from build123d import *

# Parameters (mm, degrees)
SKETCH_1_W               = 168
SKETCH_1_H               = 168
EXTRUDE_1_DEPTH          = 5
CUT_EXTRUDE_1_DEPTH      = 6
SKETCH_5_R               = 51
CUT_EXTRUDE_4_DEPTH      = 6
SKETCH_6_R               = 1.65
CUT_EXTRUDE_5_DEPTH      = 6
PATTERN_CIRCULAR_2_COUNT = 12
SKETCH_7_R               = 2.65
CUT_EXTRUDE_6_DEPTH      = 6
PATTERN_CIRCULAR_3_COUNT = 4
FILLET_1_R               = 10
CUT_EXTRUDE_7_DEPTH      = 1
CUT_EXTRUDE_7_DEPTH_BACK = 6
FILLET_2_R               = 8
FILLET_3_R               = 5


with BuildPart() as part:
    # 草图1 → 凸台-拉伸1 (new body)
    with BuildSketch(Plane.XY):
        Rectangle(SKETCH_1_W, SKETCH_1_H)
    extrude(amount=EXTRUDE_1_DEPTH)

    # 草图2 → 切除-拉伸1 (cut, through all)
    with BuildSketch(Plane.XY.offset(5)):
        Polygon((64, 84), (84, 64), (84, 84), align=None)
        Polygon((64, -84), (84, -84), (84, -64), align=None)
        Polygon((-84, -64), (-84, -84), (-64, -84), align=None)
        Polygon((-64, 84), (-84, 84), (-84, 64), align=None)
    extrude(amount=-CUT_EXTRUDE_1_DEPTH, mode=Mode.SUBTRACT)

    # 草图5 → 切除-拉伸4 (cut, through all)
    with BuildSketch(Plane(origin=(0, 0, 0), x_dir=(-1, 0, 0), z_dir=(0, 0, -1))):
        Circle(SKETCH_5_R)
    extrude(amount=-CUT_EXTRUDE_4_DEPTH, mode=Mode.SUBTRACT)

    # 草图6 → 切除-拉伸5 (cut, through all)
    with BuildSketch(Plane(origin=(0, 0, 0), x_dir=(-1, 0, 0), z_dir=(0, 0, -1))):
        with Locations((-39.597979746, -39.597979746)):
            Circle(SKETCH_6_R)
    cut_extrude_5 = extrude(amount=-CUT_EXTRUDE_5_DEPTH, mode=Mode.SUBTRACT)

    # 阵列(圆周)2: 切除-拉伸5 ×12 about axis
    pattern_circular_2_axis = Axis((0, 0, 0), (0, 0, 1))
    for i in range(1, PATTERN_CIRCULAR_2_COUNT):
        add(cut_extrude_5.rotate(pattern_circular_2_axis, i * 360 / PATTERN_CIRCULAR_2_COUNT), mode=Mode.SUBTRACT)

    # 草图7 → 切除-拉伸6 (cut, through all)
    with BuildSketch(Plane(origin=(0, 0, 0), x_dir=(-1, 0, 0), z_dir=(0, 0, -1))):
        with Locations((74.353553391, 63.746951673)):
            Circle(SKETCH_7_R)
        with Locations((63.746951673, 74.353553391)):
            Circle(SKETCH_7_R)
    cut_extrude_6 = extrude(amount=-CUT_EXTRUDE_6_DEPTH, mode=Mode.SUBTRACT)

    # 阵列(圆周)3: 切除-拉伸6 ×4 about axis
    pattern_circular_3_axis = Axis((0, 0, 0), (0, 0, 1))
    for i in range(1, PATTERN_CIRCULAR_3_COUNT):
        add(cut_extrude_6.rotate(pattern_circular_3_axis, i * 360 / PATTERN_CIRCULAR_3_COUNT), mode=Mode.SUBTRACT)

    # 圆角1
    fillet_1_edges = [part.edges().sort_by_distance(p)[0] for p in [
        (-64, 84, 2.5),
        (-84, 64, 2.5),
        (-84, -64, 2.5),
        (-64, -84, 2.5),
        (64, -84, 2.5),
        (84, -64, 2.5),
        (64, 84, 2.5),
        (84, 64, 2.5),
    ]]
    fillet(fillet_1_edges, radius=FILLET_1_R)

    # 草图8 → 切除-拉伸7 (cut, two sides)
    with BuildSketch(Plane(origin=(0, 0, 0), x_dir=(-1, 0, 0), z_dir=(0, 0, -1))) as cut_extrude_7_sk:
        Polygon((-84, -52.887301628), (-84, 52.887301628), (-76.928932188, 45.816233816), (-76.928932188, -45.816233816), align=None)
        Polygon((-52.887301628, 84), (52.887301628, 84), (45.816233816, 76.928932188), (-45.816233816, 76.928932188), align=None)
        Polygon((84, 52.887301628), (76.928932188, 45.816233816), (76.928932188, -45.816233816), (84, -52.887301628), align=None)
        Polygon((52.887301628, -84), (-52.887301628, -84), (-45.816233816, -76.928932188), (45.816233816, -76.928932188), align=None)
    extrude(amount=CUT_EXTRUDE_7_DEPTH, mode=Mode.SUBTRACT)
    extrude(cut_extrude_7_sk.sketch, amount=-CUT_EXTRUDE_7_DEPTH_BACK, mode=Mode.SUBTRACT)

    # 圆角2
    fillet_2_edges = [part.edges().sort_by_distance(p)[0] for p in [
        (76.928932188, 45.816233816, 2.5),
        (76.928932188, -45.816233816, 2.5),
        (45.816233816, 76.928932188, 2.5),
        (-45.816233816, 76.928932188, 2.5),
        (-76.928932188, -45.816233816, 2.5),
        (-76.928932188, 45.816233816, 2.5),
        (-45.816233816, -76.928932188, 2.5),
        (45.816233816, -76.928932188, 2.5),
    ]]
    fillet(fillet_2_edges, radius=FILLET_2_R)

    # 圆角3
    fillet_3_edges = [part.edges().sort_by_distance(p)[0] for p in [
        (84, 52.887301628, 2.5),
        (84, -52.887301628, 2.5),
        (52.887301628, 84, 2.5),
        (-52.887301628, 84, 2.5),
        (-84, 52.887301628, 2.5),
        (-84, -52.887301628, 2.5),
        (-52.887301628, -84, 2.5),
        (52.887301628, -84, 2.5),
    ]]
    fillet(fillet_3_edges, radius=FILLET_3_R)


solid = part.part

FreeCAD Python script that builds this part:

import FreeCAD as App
import Part
import Sketcher
from FreeCAD import Vector
Q = App.Units.Quantity


def edges_at(feature, points):
    """Names of the edges that pass closest to the given points."""
    edges = feature.Shape.Edges
    near = lambda p: min(range(len(edges)), key=lambda i: edges[i].distToShape(Part.Vertex(*p))[0])
    return sorted({f"Edge{near(p) + 1}" for p in points})

doc = App.newDocument("Part")
body = doc.addObject("PartDesign::Body", "Body")

sketch1 = doc.addObject("Sketcher::SketchObject", "Sketch")
body.addObject(sketch1)
sketch1.AttachmentSupport = (doc.XY_Plane, [""])
sketch1.MapMode = "FlatFace"
sketch1.addGeometry([
    Part.LineSegment(Vector(-84, 84, 0), Vector(-84, -84, 0)),
    Part.LineSegment(Vector(-84, -84, 0), Vector(84, -84, 0)),
    Part.LineSegment(Vector(84, -84, 0), Vector(84, 84, 0)),
    Part.LineSegment(Vector(84, 84, 0), Vector(-84, 84, 0)),
], False)
sketch1.addConstraint([
    Sketcher.Constraint("Coincident", 0, 2, 1, 1),
    Sketcher.Constraint("Coincident", 1, 2, 2, 1),
    Sketcher.Constraint("Coincident", 2, 2, 3, 1),
    Sketcher.Constraint("Coincident", 3, 2, 0, 1),
    Sketcher.Constraint("Vertical", 0),
    Sketcher.Constraint("Horizontal", 1),
    Sketcher.Constraint("Vertical", 2),
    Sketcher.Constraint("Horizontal", 3),
    Sketcher.Constraint("Symmetric", 0, 2, 2, 2, -1, 1),
    Sketcher.Constraint("Equal", 3, 0),
    Sketcher.Constraint("DistanceX", 1, 1, 1, 2, Q("168 mm")),
])
pad1 = doc.addObject("PartDesign::Pad", "Pad")
body.addObject(pad1)
pad1.Profile = sketch1
pad1.Length = 5

sketch2 = doc.addObject("Sketcher::SketchObject", "Sketch001")
body.addObject(sketch2)
sketch2.AttachmentSupport = (doc.XY_Plane, [""])
sketch2.MapMode = "FlatFace"
sketch2.AttachmentOffset = App.Placement(Vector(0, 0, 5), App.Rotation())
sketch2.addGeometry([
    Part.LineSegment(Vector(64, 84, 0), Vector(84, 64, 0)),
    Part.LineSegment(Vector(84, 64, 0), Vector(84, 84, 0)),
    Part.LineSegment(Vector(84, 84, 0), Vector(64, 84, 0)),
    Part.LineSegment(Vector(64, -84, 0), Vector(84, -84, 0)),
    Part.LineSegment(Vector(84, -84, 0), Vector(84, -64, 0)),
    Part.LineSegment(Vector(84, -64, 0), Vector(64, -84, 0)),
    Part.LineSegment(Vector(-84, -64, 0), Vector(-84, -84, 0)),
    Part.LineSegment(Vector(-84, -84, 0), Vector(-64, -84, 0)),
    Part.LineSegment(Vector(-64, -84, 0), Vector(-84, -64, 0)),
    Part.LineSegment(Vector(-64, 84, 0), Vector(-84, 84, 0)),
    Part.LineSegment(Vector(-84, 84, 0), Vector(-84, 64, 0)),
    Part.LineSegment(Vector(-84, 64, 0), Vector(-64, 84, 0)),
], False)
sketch2.addConstraint([
    Sketcher.Constraint("Coincident", 0, 2, 1, 1),
    Sketcher.Constraint("Coincident", 1, 2, 2, 1),
    Sketcher.Constraint("Coincident", 2, 2, 0, 1),
    Sketcher.Constraint("Coincident", 3, 2, 4, 1),
    Sketcher.Constraint("Coincident", 4, 2, 5, 1),
    Sketcher.Constraint("Coincident", 5, 2, 3, 1),
    Sketcher.Constraint("Coincident", 6, 2, 7, 1),
    Sketcher.Constraint("Coincident", 7, 2, 8, 1),
    Sketcher.Constraint("Coincident", 8, 2, 6, 1),
    Sketcher.Constraint("Coincident", 9, 2, 10, 1),
    Sketcher.Constraint("Coincident", 10, 2, 11, 1),
    Sketcher.Constraint("Coincident", 11, 2, 9, 1),
    Sketcher.Constraint("Vertical", 1),
    Sketcher.Constraint("Horizontal", 2),
    Sketcher.Constraint("Horizontal", 3),
    Sketcher.Constraint("Vertical", 4),
    Sketcher.Constraint("Vertical", 6),
    Sketcher.Constraint("Horizontal", 7),
    Sketcher.Constraint("Horizontal", 9),
    Sketcher.Constraint("Vertical", 10),
    Sketcher.Constraint("Symmetric", 1, 2, 6, 2, -1, 1),
    Sketcher.Constraint("Symmetric", 3, 2, 9, 2, -1, 1),
    Sketcher.Constraint("Symmetric", 3, 2, 6, 2, -2),
    Sketcher.Constraint("Perpendicular", 0, 5),
    Sketcher.Constraint("Perpendicular", 5, 8),
    Sketcher.Constraint("Perpendicular", 8, 11),
    Sketcher.Constraint("Horizontal", 4, 2, 8, 2),
    Sketcher.Constraint("Horizontal", 0, 2, 10, 2),
    Sketcher.Constraint("Vertical", 2, 2, 5, 2),
    Sketcher.Constraint("Vertical", 7, 2, 11, 2),
    Sketcher.Constraint("DistanceX", 2, 2, 2, 1, Q("20 mm")),
    Sketcher.Constraint("DistanceX", -1, 1, 0, 2, Q("84 mm")),
    Sketcher.Constraint("DistanceY", -1, 1, 0, 2, Q("64 mm")),
])
pocket1 = doc.addObject("PartDesign::Pocket", "Pocket")
body.addObject(pocket1)
pocket1.Profile = sketch2
pocket1.Type = "ThroughAll"

sketch3 = doc.addObject("Sketcher::SketchObject", "Sketch002")
body.addObject(sketch3)
sketch3.AttachmentSupport = (doc.XY_Plane, [""])
sketch3.MapMode = "FlatFace"
sketch3.addGeometry(Part.Circle(Vector(0, 0, 0), Vector(0, 0, 1), 51), False)
sketch3.addConstraint([
    Sketcher.Constraint("Coincident", 0, 3, -1, 1),
    Sketcher.Constraint("Diameter", 0, Q("102 mm")),
])
pocket2 = doc.addObject("PartDesign::Pocket", "Pocket001")
body.addObject(pocket2)
pocket2.Profile = sketch3
pocket2.Type = "ThroughAll"
pocket2.Reversed = True

sketch4 = doc.addObject("Sketcher::SketchObject", "Sketch003")
body.addObject(sketch4)
sketch4.AttachmentSupport = (doc.XY_Plane, [""])
sketch4.MapMode = "FlatFace"
sketch4.addGeometry(Part.Circle(Vector(39.6, -39.6, 0), Vector(0, 0, 1), 1.6), False)
sketch4.addConstraint([
    Sketcher.Constraint("Diameter", 0, Q("3.3 mm")),
    Sketcher.Constraint("DistanceX", -1, 1, 0, 3, Q("39.59798 mm")),
    Sketcher.Constraint("DistanceY", 0, 3, -1, 1, Q("39.59798 mm")),
])
pocket3 = doc.addObject("PartDesign::Pocket", "Pocket002")
body.addObject(pocket3)
pocket3.Profile = sketch4
pocket3.Type = "ThroughAll"
pocket3.Reversed = True
doc.recompute()

polarpattern = doc.addObject("PartDesign::PolarPattern", "PolarPattern")
body.addObject(polarpattern)
polarpattern.Originals = [pocket3]
polarpattern.Axis = (doc.Z_Axis, [""])
polarpattern.Angle = 360
polarpattern.Occurrences = 12
body.Tip = polarpattern

sketch5 = doc.addObject("Sketcher::SketchObject", "Sketch004")
body.addObject(sketch5)
sketch5.AttachmentSupport = (doc.XY_Plane, [""])
sketch5.MapMode = "FlatFace"
sketch5.addGeometry([
    Part.Circle(Vector(-74.4, 63.7, 0), Vector(0, 0, 1), 2.6),
    Part.Circle(Vector(-63.7, 74.4, 0), Vector(0, 0, 1), 2.6),
], False)
sketch5.addConstraint([
    Sketcher.Constraint("Equal", 0, 1),
    Sketcher.Constraint("Diameter", 0, Q("5.3 mm")),
    Sketcher.Constraint("DistanceX", 0, 3, 1, 3, Q("10.606602 mm")),
    Sketcher.Constraint("DistanceY", 0, 3, 1, 3, Q("10.606602 mm")),
    Sketcher.Constraint("DistanceY", -1, 1, 0, 3, Q("63.746952 mm")),
    Sketcher.Constraint("DistanceX", 1, 3, -1, 1, Q("63.746952 mm")),
])
pocket4 = doc.addObject("PartDesign::Pocket", "Pocket003")
body.addObject(pocket4)
pocket4.Profile = sketch5
pocket4.Type = "ThroughAll"
pocket4.Reversed = True
doc.recompute()

polarpattern2 = doc.addObject("PartDesign::PolarPattern", "PolarPattern001")
body.addObject(polarpattern2)
polarpattern2.Originals = [pocket4]
polarpattern2.Axis = (doc.Z_Axis, [""])
polarpattern2.Angle = 360
polarpattern2.Occurrences = 4
body.Tip = polarpattern2
doc.recompute()

fillet = doc.addObject("PartDesign::Fillet", "Fillet")
body.addObject(fillet)
fillet.Base = (polarpattern2, edges_at(polarpattern2, [
    (-64, 84, 2.5),
    (-84, 64, 2.5),
    (-84, -64, 2.5),
    (-64, -84, 2.5),
    (64, -84, 2.5),
    (84, -64, 2.5),
    (64, 84, 2.5),
    (84, 64, 2.5),
]))
fillet.Radius = 10

sketch6 = doc.addObject("Sketcher::SketchObject", "Sketch005")
body.addObject(sketch6)
sketch6.AttachmentSupport = (doc.XY_Plane, [""])
sketch6.MapMode = "FlatFace"
sketch6.addGeometry([
    Part.LineSegment(Vector(84, 53, 0), Vector(84, -53, 0)),
    Part.LineSegment(Vector(84, -53, 0), Vector(77, -46, 0)),
    Part.LineSegment(Vector(77, -46, 0), Vector(77, 46, 0)),
    Part.LineSegment(Vector(77, 46, 0), Vector(84, 53, 0)),
    Part.LineSegment(Vector(-53, 84, 0), Vector(53, 84, 0)),
    Part.LineSegment(Vector(53, 84, 0), Vector(46, 77, 0)),
    Part.LineSegment(Vector(46, 77, 0), Vector(-46, 77, 0)),
    Part.LineSegment(Vector(-46, 77, 0), Vector(-53, 84, 0)),
    Part.LineSegment(Vector(-84, 53, 0), Vector(-77, 46, 0)),
    Part.LineSegment(Vector(-77, 46, 0), Vector(-77, -46, 0)),
    Part.LineSegment(Vector(-77, -46, 0), Vector(-84, -53, 0)),
    Part.LineSegment(Vector(-84, -53, 0), Vector(-84, 53, 0)),
    Part.LineSegment(Vector(53, -84, 0), Vector(-53, -84, 0)),
    Part.LineSegment(Vector(-53, -84, 0), Vector(-46, -77, 0)),
    Part.LineSegment(Vector(-46, -77, 0), Vector(46, -77, 0)),
    Part.LineSegment(Vector(46, -77, 0), Vector(53, -84, 0)),
], False)
sketch6.addConstraint([
    Sketcher.Constraint("Coincident", 0, 2, 1, 1),
    Sketcher.Constraint("Coincident", 1, 2, 2, 1),
    Sketcher.Constraint("Coincident", 2, 2, 3, 1),
    Sketcher.Constraint("Coincident", 3, 2, 0, 1),
    Sketcher.Constraint("Coincident", 4, 2, 5, 1),
    Sketcher.Constraint("Coincident", 5, 2, 6, 1),
    Sketcher.Constraint("Coincident", 6, 2, 7, 1),
    Sketcher.Constraint("Coincident", 7, 2, 4, 1),
    Sketcher.Constraint("Coincident", 8, 2, 9, 1),
    Sketcher.Constraint("Coincident", 9, 2, 10, 1),
    Sketcher.Constraint("Coincident", 10, 2, 11, 1),
    Sketcher.Constraint("Coincident", 11, 2, 8, 1),
    Sketcher.Constraint("Coincident", 12, 2, 13, 1),
    Sketcher.Constraint("Coincident", 13, 2, 14, 1),
    Sketcher.Constraint("Coincident", 14, 2, 15, 1),
    Sketcher.Constraint("Coincident", 15, 2, 12, 1),
    Sketcher.Constraint("Vertical", 0),
    Sketcher.Constraint("Vertical", 2),
    Sketcher.Constraint("Horizontal", 4),
    Sketcher.Constraint("Horizontal", 6),
    Sketcher.Constraint("Vertical", 9),
    Sketcher.Constraint("Vertical", 11),
    Sketcher.Constraint("Horizontal", 12),
    Sketcher.Constraint("Horizontal", 14),
    Sketcher.Constraint("Symmetric", 1, 2, 8, 2, -1, 1),
    Sketcher.Constraint("Symmetric", 3, 2, 10, 2, -1, 1),
    Sketcher.Constraint("Symmetric", 4, 2, 12, 2, -1, 1),
    Sketcher.Constraint("Symmetric", 5, 2, 13, 2, -1, 1),
    Sketcher.Constraint("Perpendicular", 1, 3),
    Sketcher.Constraint("Parallel", 3, 5),
    Sketcher.Constraint("Perpendicular", 5, 7),
    Sketcher.Constraint("Parallel", 7, 8),
    Sketcher.Constraint("Perpendicular", 8, 10),
    Sketcher.Constraint("Perpendicular", 13, 15),
    Sketcher.Constraint("Horizontal", 2, 2, 8, 2),
    Sketcher.Constraint("Horizontal", 0, 2, 10, 2),
    Sketcher.Constraint("Vertical", 7, 2, 12, 2),
    Sketcher.Constraint("Vertical", 5, 2, 14, 2),
    Sketcher.Constraint("Equal", 12, 0),
    Sketcher.Constraint("Equal", 14, 2),
    Sketcher.Constraint("Distance", 1, Q("10 mm")),
    Sketcher.Constraint("DistanceX", -1, 1, 0, 2, Q("84 mm")),
    Sketcher.Constraint("DistanceY", -1, 1, 4, 2, Q("84 mm")),
    Sketcher.Constraint("DistanceY", 0, 2, -1, 1, Q("52.887302 mm")),
])
pocket5 = doc.addObject("PartDesign::Pocket", "Pocket004")
body.addObject(pocket5)
pocket5.Profile = sketch6
pocket5.Type = "ThroughAll"
pocket5.Midplane = True
doc.recompute()

fillet2 = doc.addObject("PartDesign::Fillet", "Fillet001")
body.addObject(fillet2)
fillet2.Base = (pocket5, edges_at(pocket5, [
    (76.929, 45.816, 2.5),
    (76.929, -45.816, 2.5),
    (45.816, 76.929, 2.5),
    (-45.816, 76.929, 2.5),
    (-76.929, -45.816, 2.5),
    (-76.929, 45.816, 2.5),
    (-45.816, -76.929, 2.5),
    (45.816, -76.929, 2.5),
]))
fillet2.Radius = 8
doc.recompute()

fillet3 = doc.addObject("PartDesign::Fillet", "Fillet002")
body.addObject(fillet3)
fillet3.Base = (fillet2, edges_at(fillet2, [
    (84, 52.887, 2.5),
    (84, -52.887, 2.5),
    (52.887, 84, 2.5),
    (-52.887, 84, 2.5),
    (-84, 52.887, 2.5),
    (-84, -52.887, 2.5),
    (-52.887, -84, 2.5),
    (52.887, -84, 2.5),
]))
fillet3.Radius = 5

doc.recompute()
